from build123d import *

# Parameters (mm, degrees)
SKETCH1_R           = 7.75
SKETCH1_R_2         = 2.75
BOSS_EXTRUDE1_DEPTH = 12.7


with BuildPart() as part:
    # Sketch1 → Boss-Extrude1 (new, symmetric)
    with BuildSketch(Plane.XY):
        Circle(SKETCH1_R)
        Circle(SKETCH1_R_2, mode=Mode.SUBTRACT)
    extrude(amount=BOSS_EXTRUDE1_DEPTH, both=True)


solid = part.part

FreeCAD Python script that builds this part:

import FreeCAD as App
import Part
import Sketcher

doc = App.newDocument("Part")
body = doc.addObject("PartDesign::Body", "Body")

# Sketch on XY plane
sketch1 = doc.addObject("Sketcher::SketchObject", "Sketch")
body.addObject(sketch1)
sketch1.AttachmentSupport = (doc.XY_Plane, [""])
sketch1.MapMode = "FlatFace"
sketch1.addGeometry([
    Part.Circle(App.Vector(0, 0, 0), App.Vector(0, 0, 1), 7.75),
    Part.Circle(App.Vector(0, 0, 0), App.Vector(0, 0, 1), 2.75),
], False)
sketch1.addConstraint([
    Sketcher.Constraint("Coincident", 0, 3, -1, 1),
    Sketcher.Constraint("Coincident", 1, 3, -1, 1),
    Sketcher.Constraint("Diameter", 0, 15.5),
    Sketcher.Constraint("Diameter", 1, 5.5),
])
pad1 = doc.addObject("PartDesign::Pad", "Pad")
body.addObject(pad1)
pad1.Profile = sketch1
pad1.Length = 25.4
pad1.Midplane = True

doc.recompute()
